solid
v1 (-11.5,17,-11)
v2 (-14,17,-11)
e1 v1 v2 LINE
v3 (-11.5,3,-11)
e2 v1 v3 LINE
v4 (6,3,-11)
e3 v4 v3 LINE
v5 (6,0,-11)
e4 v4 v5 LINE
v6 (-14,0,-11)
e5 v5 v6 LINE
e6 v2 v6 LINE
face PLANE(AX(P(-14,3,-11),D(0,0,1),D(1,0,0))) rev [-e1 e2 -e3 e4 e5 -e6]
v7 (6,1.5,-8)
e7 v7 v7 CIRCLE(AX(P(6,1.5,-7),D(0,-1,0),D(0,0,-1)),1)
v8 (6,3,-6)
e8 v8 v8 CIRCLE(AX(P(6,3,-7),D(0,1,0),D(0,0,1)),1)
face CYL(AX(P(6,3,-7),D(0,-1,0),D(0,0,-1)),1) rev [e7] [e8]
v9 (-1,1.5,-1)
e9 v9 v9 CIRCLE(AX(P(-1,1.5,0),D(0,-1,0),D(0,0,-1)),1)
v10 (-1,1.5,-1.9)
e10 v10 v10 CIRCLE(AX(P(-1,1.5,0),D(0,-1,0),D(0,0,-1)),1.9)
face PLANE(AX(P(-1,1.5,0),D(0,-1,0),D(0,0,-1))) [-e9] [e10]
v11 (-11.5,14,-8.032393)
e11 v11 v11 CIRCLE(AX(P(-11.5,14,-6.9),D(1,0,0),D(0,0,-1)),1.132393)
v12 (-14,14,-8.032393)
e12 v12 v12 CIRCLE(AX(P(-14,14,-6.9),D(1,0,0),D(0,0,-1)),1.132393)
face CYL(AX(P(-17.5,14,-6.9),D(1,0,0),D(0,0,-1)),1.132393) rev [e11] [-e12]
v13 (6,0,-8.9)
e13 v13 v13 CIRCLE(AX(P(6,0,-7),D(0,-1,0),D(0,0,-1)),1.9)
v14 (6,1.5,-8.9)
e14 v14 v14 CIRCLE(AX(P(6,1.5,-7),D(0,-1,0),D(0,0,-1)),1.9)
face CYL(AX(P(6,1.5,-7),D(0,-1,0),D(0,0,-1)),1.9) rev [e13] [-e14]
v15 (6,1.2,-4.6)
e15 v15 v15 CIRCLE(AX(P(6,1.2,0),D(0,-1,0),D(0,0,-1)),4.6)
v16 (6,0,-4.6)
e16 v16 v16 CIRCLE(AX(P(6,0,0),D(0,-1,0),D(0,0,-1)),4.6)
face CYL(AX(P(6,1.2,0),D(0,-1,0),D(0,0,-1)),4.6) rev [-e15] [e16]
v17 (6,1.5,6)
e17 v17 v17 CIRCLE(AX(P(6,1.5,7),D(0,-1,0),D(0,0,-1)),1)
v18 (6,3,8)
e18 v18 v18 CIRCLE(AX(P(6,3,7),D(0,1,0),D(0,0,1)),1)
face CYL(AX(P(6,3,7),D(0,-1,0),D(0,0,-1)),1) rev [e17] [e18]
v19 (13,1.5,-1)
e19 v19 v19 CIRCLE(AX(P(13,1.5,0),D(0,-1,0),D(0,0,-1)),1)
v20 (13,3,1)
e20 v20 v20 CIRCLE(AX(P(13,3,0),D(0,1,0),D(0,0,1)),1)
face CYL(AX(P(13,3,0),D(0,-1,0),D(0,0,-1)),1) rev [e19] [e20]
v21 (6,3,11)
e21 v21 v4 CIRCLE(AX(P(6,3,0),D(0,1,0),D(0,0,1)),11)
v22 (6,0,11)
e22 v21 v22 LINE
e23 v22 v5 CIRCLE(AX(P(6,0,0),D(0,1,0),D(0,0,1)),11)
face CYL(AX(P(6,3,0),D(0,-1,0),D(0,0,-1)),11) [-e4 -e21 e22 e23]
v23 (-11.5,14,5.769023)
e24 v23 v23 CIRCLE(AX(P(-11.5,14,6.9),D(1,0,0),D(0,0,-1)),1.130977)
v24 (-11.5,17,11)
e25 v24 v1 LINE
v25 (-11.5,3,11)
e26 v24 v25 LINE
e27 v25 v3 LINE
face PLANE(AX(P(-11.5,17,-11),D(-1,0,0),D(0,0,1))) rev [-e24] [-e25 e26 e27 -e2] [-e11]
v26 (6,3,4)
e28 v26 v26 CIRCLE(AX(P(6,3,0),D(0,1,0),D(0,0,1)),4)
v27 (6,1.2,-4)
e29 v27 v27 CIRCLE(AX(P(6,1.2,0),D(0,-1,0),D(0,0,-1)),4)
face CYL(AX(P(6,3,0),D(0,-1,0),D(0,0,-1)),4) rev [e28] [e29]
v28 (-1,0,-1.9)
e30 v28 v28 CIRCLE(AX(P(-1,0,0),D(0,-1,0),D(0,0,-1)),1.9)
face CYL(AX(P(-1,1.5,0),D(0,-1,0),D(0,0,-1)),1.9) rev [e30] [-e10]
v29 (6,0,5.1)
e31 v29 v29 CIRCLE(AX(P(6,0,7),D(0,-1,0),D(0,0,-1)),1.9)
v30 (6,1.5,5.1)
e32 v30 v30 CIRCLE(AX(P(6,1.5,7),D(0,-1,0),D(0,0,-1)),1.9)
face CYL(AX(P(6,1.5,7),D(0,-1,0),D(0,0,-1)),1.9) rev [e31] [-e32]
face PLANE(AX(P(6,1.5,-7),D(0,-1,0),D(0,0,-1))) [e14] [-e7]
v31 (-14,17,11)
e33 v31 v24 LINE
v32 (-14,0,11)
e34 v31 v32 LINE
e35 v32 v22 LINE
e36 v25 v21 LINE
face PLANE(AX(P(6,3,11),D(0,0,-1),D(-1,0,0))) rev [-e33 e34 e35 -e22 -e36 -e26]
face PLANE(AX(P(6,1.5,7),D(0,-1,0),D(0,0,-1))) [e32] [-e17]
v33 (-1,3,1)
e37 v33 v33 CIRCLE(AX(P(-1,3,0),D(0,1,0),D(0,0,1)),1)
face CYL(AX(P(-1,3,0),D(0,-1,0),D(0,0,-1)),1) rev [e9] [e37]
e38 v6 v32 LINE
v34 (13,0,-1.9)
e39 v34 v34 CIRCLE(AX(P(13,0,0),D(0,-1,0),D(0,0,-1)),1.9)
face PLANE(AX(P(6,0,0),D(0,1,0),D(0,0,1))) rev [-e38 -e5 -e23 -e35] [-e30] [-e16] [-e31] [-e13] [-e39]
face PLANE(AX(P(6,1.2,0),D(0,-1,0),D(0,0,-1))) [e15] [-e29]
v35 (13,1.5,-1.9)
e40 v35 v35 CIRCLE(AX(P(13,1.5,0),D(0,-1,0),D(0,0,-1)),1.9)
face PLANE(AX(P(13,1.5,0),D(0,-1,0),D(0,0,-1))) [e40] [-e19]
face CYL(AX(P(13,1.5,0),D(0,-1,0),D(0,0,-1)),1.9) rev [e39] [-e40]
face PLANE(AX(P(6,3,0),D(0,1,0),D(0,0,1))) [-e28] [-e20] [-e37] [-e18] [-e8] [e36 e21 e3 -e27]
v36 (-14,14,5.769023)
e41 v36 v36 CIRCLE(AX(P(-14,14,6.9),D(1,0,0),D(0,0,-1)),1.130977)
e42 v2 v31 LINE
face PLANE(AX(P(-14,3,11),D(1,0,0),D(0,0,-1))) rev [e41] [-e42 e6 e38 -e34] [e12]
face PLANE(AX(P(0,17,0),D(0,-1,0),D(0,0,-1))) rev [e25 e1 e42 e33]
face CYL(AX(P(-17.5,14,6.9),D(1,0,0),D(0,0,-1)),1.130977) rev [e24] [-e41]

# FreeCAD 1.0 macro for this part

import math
import FreeCAD as App
import Part
import Sketcher
from FreeCAD import Vector
Q = App.Units.Quantity


def add_polygon(sketch, points):
    """Adds a closed chain of lines whose ends are joined by coincident constraints."""
    first, n = sketch.GeometryCount, len(points)
    for a, b in zip(points, points[1:] + points[:1]):
        sketch.addGeometry(Part.LineSegment(App.Vector(*a, 0), App.Vector(*b, 0)), False)
    for i in range(n):
        sketch.addConstraint(Sketcher.Constraint("Coincident", first + i, 2, first + (i + 1) % n, 1))

doc = App.newDocument("Part")
body = doc.addObject("PartDesign::Body", "Body")

sketch1 = body.newObject("Sketcher::SketchObject", "Sketch")
sketch1.AttachmentSupport = (doc.getObject("XZ_Plane"), [""])
sketch1.MapMode = "FlatFace"
sketch1.addGeometry(Part.LineSegment(Vector(-14, -11, 0), Vector(-14, 11, 0)), False)
sketch1.addGeometry(Part.LineSegment(Vector(-14, 11, 0), Vector(6, 11, 0)), False)
sketch1.addGeometry(Part.ArcOfCircle(Part.Circle(Vector(6, 0, 0), Vector(0, 0, 1), 11), math.radians(-90), math.radians(90)), False)
sketch1.addGeometry(Part.LineSegment(Vector(6, -11, 0), Vector(-14, -11, 0)), False)
sketch1.addGeometry(Part.Circle(Vector(6, 7, 0), Vector(0, 0, 1), 1), False)
sketch1.addGeometry(Part.Circle(Vector(13, 0, 0), Vector(0, 0, 1), 1), False)
sketch1.addGeometry(Part.Circle(Vector(6, 0, 0), Vector(0, 0, 1), 4), False)
sketch1.addGeometry(Part.Circle(Vector(-1, 0, 0), Vector(0, 0, 1), 1), False)
sketch1.addGeometry(Part.Circle(Vector(6, -7, 0), Vector(0, 0, 1), 1), False)
sketch1.addConstraint(Sketcher.Constraint("Coincident", 0, 2, 1, 1))
sketch1.addConstraint(Sketcher.Constraint("Tangent", 1, 2, 2, 2))
sketch1.addConstraint(Sketcher.Constraint("Tangent", 2, 1, 3, 1))
sketch1.addConstraint(Sketcher.Constraint("Coincident", 3, 2, 0, 1))
sketch1.addConstraint(Sketcher.Constraint("Vertical", 0))
sketch1.addConstraint(Sketcher.Constraint("Horizontal", 1))
sketch1.addConstraint(Sketcher.Constraint("Horizontal", 3))
sketch1.addConstraint(Sketcher.Constraint("Coincident", 6, 3, 2, 3))
sketch1.addConstraint(Sketcher.Constraint("Equal", 4, 5))
sketch1.addConstraint(Sketcher.Constraint("Equal", 5, 7))
sketch1.addConstraint(Sketcher.Constraint("Equal", 7, 8))
sketch1.addConstraint(Sketcher.Constraint("Symmetric", 4, 3, 8, 3, -1))
sketch1.addConstraint(Sketcher.Constraint("PointOnObject", 2, 3, -1))
sketch1.addConstraint(Sketcher.Constraint("PointOnObject", 5, 3, -1))
sketch1.addConstraint(Sketcher.Constraint("PointOnObject", 7, 3, -1))
sketch1.addConstraint(Sketcher.Constraint("Vertical", 2, 3, 4, 3))
sketch1.addConstraint(Sketcher.Constraint("Diameter", 4, Q("2 mm")))
sketch1.addConstraint(Sketcher.Constraint("Diameter", 6, Q("8 mm")))
sketch1.addConstraint(Sketcher.Constraint("Radius", 2, Q("11 mm")))
sketch1.addConstraint(Sketcher.Constraint("DistanceX", 1, 1, 1, 2, Q("20 mm")))
sketch1.addConstraint(Sketcher.Constraint("DistanceX", -1, 1, 2, 3, Q("6 mm")))
sketch1.addConstraint(Sketcher.Constraint("DistanceY", -1, 1, 4, 3, Q("7 mm")))
sketch1.addConstraint(Sketcher.Constraint("DistanceX", -1, 1, 5, 3, Q("13 mm")))
sketch1.addConstraint(Sketcher.Constraint("DistanceX", 7, 3, -1, 1, Q("1 mm")))
pad1 = body.newObject("PartDesign::Pad", "Pad")
pad1.Profile = sketch1
pad1.Length = 3
pad1.Reversed = True

sketch2 = body.newObject("Sketcher::SketchObject", "Sketch001")
sketch2.AttachmentSupport = (doc.getObject("XZ_Plane"), [""])
sketch2.MapMode = "FlatFace"
sketch2.AttachmentOffset = App.Placement(Vector(0, 0, -3), App.Rotation())
add_polygon(sketch2, [(-14, -11), (-14, 11), (-11.5, 11), (-11.5, -11)])
sketch2.addConstraint(Sketcher.Constraint("Vertical", 0))
sketch2.addConstraint(Sketcher.Constraint("Horizontal", 1))
sketch2.addConstraint(Sketcher.Constraint("Vertical", 2))
sketch2.addConstraint(Sketcher.Constraint("Horizontal", 3))
sketch2.addConstraint(Sketcher.Constraint("DistanceY", 0, 1, 0, 2, Q("22 mm")))
sketch2.addConstraint(Sketcher.Constraint("DistanceX", 1, 1, 1, 2, Q("2.5 mm")))
sketch2.addConstraint(Sketcher.Constraint("DistanceX", 0, 2, -1, 1, Q("14 mm")))
sketch2.addConstraint(Sketcher.Constraint("DistanceY", -1, 1, 0, 2, Q("11 mm")))
pad2 = body.newObject("PartDesign::Pad", "Pad001")
pad2.Profile = sketch2
pad2.Length = 14
pad2.Reversed = True

sketch3 = body.newObject("Sketcher::SketchObject", "Sketch002")
sketch3.AttachmentSupport = (doc.getObject("YZ_Plane"), [""])
sketch3.MapMode = "FlatFace"
sketch3.AttachmentOffset = App.Placement(Vector(0, 0, -11.5), App.Rotation())
sketch3.addGeometry(Part.Circle(Vector(14, -6.9, 0), Vector(0, 0, 1), 1.132393), False)
sketch3.addGeometry(Part.Circle(Vector(14, 6.9, 0), Vector(0, 0, 1), 1.130977), False)
sketch3.addConstraint(Sketcher.Constraint("Symmetric", 0, 3, 1, 3, -1))
sketch3.addConstraint(Sketcher.Constraint("DistanceX", -1, 1, 0, 3, Q("14 mm")))
sketch3.addConstraint(Sketcher.Constraint("DistanceY", 0, 3, -1, 1, Q("6.9 mm")))
sketch3.addConstraint(Sketcher.Constraint("Diameter", 0, Q("2.264787 mm")))
sketch3.addConstraint(Sketcher.Constraint("Diameter", 1, Q("2.261955 mm")))
pocket1 = body.newObject("PartDesign::Pocket", "Pocket")
pocket1.Profile = sketch3
pocket1.Length = 6

sketch4 = body.newObject("Sketcher::SketchObject", "Sketch003")
sketch4.AttachmentSupport = (doc.getObject("XZ_Plane"), [""])
sketch4.MapMode = "FlatFace"
sketch4.addGeometry(Part.Circle(Vector(6, 0, 0), Vector(0, 0, 1), 4.6), False)
sketch4.addConstraint(Sketcher.Constraint("PointOnObject", 0, 3, -1))
sketch4.addConstraint(Sketcher.Constraint("Diameter", 0, Q("9.2 mm")))
sketch4.addConstraint(Sketcher.Constraint("DistanceX", -1, 1, 0, 3, Q("6 mm")))
pocket2 = body.newObject("PartDesign::Pocket", "Pocket001")
pocket2.Profile = sketch4
pocket2.Length = 1.2

sketch5 = body.newObject("Sketcher::SketchObject", "Sketch004")
sketch5.AttachmentSupport = (doc.getObject("XZ_Plane"), [""])
sketch5.MapMode = "FlatFace"
sketch5.addGeometry(Part.Circle(Vector(13, 0, 0), Vector(0, 0, 1), 1.9), False)
sketch5.addGeometry(Part.Circle(Vector(6, -7, 0), Vector(0, 0, 1), 1.9), False)
sketch5.addGeometry(Part.Circle(Vector(-1, 0, 0), Vector(0, 0, 1), 1.9), False)
sketch5.addGeometry(Part.Circle(Vector(6, 7, 0), Vector(0, 0, 1), 1.9), False)
sketch5.addConstraint(Sketcher.Constraint("Equal", 0, 1))
sketch5.addConstraint(Sketcher.Constraint("Equal", 1, 2))
sketch5.addConstraint(Sketcher.Constraint("Equal", 2, 3))
sketch5.addConstraint(Sketcher.Constraint("Symmetric", 1, 3, 3, 3, -1))
sketch5.addConstraint(Sketcher.Constraint("PointOnObject", 0, 3, -1))
sketch5.addConstraint(Sketcher.Constraint("PointOnObject", 2, 3, -1))
sketch5.addConstraint(Sketcher.Constraint("Diameter", 0, Q("3.8 mm")))
sketch5.addConstraint(Sketcher.Constraint("DistanceX", -1, 1, 0, 3, Q("13 mm")))
sketch5.addConstraint(Sketcher.Constraint("DistanceX", -1, 1, 1, 3, Q("6 mm")))
sketch5.addConstraint(Sketcher.Constraint("DistanceY", 1, 3, -1, 1, Q("7 mm")))
sketch5.addConstraint(Sketcher.Constraint("DistanceX", 2, 3, -1, 1, Q("1 mm")))
pocket3 = body.newObject("PartDesign::Pocket", "Pocket002")
pocket3.Profile = sketch5
pocket3.Length = 1.5

doc.recompute()
